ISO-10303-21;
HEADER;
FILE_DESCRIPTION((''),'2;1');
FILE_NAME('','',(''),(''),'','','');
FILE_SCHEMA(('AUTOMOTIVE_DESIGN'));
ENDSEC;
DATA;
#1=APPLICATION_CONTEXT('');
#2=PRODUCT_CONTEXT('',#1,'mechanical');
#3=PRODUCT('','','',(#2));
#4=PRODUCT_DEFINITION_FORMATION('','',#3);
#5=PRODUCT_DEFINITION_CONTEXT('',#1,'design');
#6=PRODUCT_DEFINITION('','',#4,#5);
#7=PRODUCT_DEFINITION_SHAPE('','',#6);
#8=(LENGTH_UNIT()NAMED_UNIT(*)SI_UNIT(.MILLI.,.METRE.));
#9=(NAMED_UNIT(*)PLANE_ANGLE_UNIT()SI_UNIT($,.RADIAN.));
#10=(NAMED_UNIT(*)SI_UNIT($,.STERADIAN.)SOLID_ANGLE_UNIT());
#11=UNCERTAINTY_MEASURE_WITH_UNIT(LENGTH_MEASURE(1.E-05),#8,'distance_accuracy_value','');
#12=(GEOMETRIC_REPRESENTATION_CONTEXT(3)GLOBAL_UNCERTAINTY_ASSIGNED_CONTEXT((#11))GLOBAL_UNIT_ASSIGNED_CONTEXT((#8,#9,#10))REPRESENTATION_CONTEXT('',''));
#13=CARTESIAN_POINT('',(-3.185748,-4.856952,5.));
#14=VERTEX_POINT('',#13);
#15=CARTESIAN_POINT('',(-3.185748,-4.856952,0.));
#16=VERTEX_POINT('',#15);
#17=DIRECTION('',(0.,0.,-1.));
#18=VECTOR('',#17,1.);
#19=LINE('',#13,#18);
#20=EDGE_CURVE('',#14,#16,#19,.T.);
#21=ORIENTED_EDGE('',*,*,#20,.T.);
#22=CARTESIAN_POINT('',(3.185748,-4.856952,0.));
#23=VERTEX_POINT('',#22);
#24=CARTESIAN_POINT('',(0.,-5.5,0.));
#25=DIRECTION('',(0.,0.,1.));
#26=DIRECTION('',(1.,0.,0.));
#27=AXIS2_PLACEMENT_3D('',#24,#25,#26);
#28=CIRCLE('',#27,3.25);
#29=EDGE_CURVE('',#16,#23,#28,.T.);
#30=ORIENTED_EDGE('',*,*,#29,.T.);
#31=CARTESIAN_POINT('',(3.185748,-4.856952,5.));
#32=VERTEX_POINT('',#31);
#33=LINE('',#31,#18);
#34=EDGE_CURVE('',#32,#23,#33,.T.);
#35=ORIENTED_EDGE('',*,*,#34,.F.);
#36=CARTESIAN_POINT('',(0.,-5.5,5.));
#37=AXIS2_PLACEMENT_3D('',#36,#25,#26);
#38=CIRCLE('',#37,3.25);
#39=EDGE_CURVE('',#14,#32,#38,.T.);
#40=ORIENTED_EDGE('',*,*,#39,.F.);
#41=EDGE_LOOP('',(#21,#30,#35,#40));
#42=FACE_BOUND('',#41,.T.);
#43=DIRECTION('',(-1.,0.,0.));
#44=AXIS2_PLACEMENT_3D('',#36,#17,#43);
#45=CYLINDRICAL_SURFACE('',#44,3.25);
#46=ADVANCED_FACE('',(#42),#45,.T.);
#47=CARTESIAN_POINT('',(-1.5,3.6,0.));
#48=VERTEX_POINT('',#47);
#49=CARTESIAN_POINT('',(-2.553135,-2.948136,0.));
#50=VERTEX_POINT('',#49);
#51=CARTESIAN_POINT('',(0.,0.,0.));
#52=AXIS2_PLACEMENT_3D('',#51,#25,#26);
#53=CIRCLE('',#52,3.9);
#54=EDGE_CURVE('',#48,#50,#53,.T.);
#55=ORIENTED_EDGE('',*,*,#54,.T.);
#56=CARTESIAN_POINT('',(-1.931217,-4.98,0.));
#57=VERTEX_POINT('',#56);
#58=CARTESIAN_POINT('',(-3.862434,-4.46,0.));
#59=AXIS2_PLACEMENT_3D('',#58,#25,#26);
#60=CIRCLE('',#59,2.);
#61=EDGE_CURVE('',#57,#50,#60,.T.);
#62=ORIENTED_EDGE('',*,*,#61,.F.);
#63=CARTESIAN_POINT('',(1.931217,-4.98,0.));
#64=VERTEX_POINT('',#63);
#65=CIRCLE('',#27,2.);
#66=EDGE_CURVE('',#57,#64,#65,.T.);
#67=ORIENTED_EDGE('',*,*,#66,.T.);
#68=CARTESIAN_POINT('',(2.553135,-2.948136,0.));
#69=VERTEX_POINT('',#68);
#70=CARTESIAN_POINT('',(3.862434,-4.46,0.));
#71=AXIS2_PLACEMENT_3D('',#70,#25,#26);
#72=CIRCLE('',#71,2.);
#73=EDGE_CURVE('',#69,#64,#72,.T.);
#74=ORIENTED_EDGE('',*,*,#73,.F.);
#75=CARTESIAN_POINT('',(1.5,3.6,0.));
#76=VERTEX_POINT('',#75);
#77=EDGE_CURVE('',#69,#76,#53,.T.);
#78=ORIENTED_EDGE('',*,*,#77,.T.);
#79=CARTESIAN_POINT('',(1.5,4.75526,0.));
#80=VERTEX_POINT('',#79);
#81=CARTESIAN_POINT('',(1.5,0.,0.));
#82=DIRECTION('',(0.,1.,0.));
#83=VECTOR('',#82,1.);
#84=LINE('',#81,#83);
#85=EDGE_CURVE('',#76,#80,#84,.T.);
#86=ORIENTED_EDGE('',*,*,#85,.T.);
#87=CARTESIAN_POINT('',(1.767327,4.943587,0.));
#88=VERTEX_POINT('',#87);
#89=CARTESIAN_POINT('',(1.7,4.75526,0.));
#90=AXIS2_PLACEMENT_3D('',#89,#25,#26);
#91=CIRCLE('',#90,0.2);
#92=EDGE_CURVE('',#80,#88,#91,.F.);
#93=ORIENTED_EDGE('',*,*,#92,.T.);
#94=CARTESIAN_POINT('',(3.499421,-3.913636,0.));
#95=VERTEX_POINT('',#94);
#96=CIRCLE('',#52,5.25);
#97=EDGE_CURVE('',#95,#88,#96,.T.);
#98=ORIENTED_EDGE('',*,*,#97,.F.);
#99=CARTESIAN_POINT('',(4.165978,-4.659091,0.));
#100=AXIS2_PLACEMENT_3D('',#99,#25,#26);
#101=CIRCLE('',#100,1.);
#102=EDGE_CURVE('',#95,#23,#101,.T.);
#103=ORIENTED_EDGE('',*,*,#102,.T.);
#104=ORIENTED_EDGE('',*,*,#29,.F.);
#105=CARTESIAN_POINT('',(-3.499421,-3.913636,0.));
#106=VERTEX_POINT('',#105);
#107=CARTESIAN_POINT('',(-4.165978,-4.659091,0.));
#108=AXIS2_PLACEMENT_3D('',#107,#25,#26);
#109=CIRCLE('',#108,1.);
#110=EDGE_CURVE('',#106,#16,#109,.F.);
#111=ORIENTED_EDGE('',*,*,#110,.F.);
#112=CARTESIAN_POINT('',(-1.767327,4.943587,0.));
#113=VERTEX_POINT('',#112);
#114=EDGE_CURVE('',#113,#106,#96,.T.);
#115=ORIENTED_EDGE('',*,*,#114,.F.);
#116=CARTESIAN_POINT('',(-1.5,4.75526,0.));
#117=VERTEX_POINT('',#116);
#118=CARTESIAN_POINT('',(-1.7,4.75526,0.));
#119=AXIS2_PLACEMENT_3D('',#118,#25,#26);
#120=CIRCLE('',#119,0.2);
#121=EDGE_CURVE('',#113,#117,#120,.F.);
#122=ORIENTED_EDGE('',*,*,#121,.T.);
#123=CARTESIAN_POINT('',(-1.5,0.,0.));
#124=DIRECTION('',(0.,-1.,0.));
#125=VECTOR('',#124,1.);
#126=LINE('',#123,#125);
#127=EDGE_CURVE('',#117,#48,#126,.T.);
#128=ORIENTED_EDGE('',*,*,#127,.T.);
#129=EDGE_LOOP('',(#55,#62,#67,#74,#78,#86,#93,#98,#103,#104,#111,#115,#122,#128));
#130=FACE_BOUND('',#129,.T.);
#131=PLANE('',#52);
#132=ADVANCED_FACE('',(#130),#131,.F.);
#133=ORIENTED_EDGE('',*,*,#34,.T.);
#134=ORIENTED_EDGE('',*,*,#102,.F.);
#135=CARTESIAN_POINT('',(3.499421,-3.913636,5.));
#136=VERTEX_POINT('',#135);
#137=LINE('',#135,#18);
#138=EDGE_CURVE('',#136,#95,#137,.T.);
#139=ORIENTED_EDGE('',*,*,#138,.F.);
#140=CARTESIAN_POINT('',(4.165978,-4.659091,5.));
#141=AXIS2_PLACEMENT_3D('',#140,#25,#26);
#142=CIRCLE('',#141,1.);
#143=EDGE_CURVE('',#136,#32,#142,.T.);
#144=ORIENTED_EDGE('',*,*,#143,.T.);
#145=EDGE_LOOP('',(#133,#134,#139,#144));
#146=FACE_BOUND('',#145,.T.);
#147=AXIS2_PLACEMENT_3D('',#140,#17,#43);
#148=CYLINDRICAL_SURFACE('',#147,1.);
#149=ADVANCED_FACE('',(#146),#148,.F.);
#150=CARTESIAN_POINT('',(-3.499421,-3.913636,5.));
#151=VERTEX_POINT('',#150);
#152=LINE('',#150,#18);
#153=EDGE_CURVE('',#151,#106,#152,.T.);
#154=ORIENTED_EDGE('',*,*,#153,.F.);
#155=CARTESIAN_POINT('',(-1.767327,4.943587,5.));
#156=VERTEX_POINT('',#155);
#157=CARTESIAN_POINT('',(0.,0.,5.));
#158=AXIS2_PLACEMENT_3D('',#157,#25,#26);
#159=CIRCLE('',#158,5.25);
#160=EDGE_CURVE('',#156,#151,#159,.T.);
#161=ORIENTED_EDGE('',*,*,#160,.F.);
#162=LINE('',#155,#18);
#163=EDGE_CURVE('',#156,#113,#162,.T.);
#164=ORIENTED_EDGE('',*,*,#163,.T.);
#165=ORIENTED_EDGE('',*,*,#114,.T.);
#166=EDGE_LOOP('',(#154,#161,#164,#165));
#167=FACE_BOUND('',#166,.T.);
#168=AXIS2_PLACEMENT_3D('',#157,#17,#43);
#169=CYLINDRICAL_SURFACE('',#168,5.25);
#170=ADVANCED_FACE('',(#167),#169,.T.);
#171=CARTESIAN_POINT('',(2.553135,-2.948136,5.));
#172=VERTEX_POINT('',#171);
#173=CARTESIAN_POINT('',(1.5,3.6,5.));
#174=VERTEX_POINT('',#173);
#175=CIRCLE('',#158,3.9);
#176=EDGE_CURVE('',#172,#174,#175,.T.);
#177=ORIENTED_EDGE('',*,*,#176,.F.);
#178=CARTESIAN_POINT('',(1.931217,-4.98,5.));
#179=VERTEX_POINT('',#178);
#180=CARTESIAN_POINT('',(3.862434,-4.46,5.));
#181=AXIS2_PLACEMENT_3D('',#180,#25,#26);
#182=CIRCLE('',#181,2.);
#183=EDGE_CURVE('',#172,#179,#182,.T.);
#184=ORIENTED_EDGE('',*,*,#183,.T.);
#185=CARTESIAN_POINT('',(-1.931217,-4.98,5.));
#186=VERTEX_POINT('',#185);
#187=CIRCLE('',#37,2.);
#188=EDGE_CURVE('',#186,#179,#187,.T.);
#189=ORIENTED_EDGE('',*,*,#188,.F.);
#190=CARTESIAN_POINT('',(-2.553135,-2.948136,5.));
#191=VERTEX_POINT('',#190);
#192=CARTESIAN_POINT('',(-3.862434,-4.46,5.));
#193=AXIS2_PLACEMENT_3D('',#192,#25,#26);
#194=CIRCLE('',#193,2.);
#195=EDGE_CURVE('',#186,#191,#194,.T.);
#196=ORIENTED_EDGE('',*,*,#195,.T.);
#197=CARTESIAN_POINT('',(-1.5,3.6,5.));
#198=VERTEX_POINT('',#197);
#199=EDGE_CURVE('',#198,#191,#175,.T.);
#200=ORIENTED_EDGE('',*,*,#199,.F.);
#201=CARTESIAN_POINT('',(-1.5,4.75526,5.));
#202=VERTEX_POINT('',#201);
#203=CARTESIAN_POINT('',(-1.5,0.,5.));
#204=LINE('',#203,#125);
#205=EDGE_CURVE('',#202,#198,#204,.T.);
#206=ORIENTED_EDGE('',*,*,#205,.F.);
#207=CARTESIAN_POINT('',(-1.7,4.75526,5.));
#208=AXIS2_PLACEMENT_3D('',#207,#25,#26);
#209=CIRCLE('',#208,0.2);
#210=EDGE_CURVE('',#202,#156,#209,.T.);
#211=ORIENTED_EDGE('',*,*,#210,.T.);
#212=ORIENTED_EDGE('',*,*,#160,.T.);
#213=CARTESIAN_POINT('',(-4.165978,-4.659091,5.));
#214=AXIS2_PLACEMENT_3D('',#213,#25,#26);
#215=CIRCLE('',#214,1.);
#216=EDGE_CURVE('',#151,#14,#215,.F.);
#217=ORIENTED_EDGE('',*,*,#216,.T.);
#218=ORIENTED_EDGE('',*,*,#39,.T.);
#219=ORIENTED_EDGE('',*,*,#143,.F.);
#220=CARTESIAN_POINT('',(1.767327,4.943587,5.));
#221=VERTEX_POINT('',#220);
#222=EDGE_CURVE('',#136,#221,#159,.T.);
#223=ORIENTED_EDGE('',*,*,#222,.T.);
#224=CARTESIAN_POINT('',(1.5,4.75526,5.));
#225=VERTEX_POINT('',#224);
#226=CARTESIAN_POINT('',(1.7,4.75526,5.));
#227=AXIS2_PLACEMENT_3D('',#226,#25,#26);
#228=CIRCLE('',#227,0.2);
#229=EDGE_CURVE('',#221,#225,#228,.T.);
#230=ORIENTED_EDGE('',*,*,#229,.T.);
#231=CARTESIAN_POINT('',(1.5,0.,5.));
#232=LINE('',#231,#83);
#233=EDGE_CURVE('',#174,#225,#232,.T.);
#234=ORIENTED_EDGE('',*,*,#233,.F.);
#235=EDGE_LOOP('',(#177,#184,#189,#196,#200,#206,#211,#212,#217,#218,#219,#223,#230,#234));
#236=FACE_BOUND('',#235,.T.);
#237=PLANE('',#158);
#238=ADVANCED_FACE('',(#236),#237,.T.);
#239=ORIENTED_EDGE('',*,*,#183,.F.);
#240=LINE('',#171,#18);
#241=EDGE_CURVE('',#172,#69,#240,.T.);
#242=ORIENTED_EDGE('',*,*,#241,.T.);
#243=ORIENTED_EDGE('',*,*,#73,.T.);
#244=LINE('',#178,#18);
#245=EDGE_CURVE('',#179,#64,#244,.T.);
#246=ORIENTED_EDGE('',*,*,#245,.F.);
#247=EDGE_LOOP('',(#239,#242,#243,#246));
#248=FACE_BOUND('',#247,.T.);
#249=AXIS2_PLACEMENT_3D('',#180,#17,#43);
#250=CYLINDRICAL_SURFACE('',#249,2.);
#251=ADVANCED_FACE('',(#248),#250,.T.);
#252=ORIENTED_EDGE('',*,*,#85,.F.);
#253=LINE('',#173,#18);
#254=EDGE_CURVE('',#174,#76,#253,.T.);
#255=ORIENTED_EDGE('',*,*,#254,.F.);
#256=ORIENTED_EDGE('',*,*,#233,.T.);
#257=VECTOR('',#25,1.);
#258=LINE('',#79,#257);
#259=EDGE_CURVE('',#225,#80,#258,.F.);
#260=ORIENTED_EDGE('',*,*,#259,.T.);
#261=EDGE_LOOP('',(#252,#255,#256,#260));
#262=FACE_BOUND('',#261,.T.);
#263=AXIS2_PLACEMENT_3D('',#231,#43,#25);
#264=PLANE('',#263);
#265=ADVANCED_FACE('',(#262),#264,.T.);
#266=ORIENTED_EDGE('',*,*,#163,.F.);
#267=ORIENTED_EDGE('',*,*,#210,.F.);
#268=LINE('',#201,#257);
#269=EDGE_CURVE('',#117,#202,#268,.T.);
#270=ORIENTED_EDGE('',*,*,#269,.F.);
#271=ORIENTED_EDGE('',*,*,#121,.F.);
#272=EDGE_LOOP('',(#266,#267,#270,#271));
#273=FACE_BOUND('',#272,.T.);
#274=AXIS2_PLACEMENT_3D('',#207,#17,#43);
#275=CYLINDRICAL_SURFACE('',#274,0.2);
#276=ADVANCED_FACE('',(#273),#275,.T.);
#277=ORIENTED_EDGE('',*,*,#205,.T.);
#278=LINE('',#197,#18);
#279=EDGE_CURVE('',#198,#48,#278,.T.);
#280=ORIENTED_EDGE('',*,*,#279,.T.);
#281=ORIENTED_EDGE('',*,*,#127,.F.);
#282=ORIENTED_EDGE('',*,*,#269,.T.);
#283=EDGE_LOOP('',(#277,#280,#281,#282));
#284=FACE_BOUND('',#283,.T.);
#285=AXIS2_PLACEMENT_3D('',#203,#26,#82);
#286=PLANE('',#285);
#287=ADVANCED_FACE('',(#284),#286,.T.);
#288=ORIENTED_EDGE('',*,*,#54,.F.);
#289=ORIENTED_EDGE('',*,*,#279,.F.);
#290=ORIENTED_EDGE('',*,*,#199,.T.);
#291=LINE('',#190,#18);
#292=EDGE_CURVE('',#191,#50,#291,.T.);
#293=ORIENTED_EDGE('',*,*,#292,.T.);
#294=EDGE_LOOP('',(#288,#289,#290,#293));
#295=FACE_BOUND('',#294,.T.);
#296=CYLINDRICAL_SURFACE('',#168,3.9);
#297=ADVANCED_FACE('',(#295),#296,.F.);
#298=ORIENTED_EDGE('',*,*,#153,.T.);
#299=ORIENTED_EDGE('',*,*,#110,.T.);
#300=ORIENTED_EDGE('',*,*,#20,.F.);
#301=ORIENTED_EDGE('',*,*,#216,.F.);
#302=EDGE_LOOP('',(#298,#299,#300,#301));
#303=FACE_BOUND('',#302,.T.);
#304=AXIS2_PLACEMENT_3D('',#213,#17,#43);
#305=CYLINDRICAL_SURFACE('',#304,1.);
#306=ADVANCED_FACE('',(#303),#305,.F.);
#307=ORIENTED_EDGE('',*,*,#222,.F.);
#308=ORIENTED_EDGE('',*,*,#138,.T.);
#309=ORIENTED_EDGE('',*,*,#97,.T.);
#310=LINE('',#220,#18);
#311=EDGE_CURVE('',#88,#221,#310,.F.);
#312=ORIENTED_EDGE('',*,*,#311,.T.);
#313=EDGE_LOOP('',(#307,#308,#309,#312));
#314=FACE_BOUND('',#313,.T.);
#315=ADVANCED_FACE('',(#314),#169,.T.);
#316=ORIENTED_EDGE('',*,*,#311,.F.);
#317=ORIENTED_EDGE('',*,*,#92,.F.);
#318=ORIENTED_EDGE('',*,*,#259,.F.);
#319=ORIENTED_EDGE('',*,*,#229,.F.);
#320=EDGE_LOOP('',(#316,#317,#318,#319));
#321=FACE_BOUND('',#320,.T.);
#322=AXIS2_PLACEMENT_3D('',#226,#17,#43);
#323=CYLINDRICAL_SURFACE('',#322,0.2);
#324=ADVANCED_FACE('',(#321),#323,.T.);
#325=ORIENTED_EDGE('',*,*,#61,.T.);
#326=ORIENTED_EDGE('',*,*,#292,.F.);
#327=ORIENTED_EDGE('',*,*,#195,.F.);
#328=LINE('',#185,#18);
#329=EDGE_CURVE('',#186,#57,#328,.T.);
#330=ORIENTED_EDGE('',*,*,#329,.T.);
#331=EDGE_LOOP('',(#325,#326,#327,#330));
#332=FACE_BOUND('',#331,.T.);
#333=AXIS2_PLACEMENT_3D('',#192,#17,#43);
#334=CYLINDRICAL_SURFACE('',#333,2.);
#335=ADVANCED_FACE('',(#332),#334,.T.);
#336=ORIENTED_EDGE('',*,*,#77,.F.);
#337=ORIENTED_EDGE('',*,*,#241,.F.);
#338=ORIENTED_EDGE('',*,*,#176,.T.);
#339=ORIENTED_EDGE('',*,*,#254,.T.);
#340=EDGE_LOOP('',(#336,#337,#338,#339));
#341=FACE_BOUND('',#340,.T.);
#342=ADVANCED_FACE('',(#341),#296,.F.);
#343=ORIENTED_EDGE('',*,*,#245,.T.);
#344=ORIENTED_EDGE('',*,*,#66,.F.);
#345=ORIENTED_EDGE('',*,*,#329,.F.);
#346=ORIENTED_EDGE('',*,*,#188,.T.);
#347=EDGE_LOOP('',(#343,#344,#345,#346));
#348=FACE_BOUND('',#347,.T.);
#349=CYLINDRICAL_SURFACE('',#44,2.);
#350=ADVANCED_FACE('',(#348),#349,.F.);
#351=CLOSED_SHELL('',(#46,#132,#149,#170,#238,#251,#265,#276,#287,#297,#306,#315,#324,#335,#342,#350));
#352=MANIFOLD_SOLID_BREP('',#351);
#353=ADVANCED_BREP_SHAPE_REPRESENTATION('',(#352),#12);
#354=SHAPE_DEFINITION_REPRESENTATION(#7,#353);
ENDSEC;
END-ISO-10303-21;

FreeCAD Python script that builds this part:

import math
import FreeCAD as App
import Part
import Sketcher
Q = App.Units.Quantity


def edges_at(feature, points):
    """Names of the edges that pass closest to the given points."""
    edges = feature.Shape.Edges
    near = lambda p: min(range(len(edges)), key=lambda i: edges[i].distToShape(Part.Vertex(*p))[0])
    return sorted({f"Edge{near(p) + 1}" for p in points})

doc = App.newDocument("Part")
body = doc.addObject("PartDesign::Body", "Body")

sketch1 = body.newObject("Sketcher::SketchObject", "Sketch")
sketch1.AttachmentSupport = (doc.getObject("XY_Plane"), [""])
sketch1.MapMode = "FlatFace"
sketch1.addGeometry(Part.ArcOfCircle(Part.Circle(App.Vector(0, -5.5, 0), App.Vector(0, 0, 1), 2), math.radians(165), math.radians(375)), False)
sketch1.addGeometry(Part.ArcOfCircle(Part.Circle(App.Vector(-3.9, -4.5, 0), App.Vector(0, 0, 1), 2), math.radians(-15), math.radians(49)), False)
sketch1.addGeometry(Part.ArcOfCircle(Part.Circle(App.Vector(0, 0, 0), App.Vector(0, 0, 1), 3.9), math.radians(113), math.radians(229)), False)
sketch1.addGeometry(Part.LineSegment(App.Vector(-1.5, 3.6, 0), App.Vector(-1.5, 5, 0)), False)
sketch1.addGeometry(Part.ArcOfCircle(Part.Circle(App.Vector(0, 0, 0), App.Vector(0, 0, 1), 5.2), math.radians(107), math.radians(228)), False)
sketch1.addGeometry(Part.ArcOfCircle(Part.Circle(App.Vector(-4.2, -4.7, 0), App.Vector(0, 0, 1), 1), math.radians(-11), math.radians(48)), False)
sketch1.addGeometry(Part.ArcOfCircle(Part.Circle(App.Vector(0, -5.5, 0), App.Vector(0, 0, 1), 3.2), math.radians(169), math.radians(371)), False)
sketch1.addGeometry(Part.ArcOfCircle(Part.Circle(App.Vector(4.2, -4.7, 0), App.Vector(0, 0, 1), 1), math.radians(132), math.radians(191)), False)
sketch1.addGeometry(Part.ArcOfCircle(Part.Circle(App.Vector(0, 0, 0), App.Vector(0, 0, 1), 5.2), math.radians(-48), math.radians(73)), False)
sketch1.addGeometry(Part.LineSegment(App.Vector(1.5, 5, 0), App.Vector(1.5, 3.6, 0)), False)
sketch1.addGeometry(Part.ArcOfCircle(Part.Circle(App.Vector(0, 0, 0), App.Vector(0, 0, 1), 3.9), math.radians(-49), math.radians(67)), False)
sketch1.addGeometry(Part.ArcOfCircle(Part.Circle(App.Vector(3.9, -4.5, 0), App.Vector(0, 0, 1), 2), math.radians(131), math.radians(195)), False)
sketch1.addConstraint(Sketcher.Constraint("Tangent", 0, 1, 1, 1))
sketch1.addConstraint(Sketcher.Constraint("Tangent", 1, 2, 2, 2))
sketch1.addConstraint(Sketcher.Constraint("Coincident", 2, 1, 3, 1))
sketch1.addConstraint(Sketcher.Constraint("Coincident", 3, 2, 4, 1))
sketch1.addConstraint(Sketcher.Constraint("Tangent", 4, 2, 5, 2))
sketch1.addConstraint(Sketcher.Constraint("Tangent", 5, 1, 6, 1))
sketch1.addConstraint(Sketcher.Constraint("Tangent", 6, 2, 7, 2))
sketch1.addConstraint(Sketcher.Constraint("Tangent", 7, 1, 8, 1))
sketch1.addConstraint(Sketcher.Constraint("Coincident", 8, 2, 9, 1))
sketch1.addConstraint(Sketcher.Constraint("Coincident", 9, 2, 10, 2))
sketch1.addConstraint(Sketcher.Constraint("Tangent", 10, 1, 11, 1))
sketch1.addConstraint(Sketcher.Constraint("Tangent", 11, 2, 0, 2))
sketch1.addConstraint(Sketcher.Constraint("Vertical", 3))
sketch1.addConstraint(Sketcher.Constraint("Vertical", 9))
sketch1.addConstraint(Sketcher.Constraint("Coincident", 2, 3, -1, 1))
sketch1.addConstraint(Sketcher.Constraint("Coincident", 4, 3, -1, 1))
sketch1.addConstraint(Sketcher.Constraint("Coincident", 8, 3, -1, 1))
sketch1.addConstraint(Sketcher.Constraint("Coincident", 10, 3, -1, 1))
sketch1.addConstraint(Sketcher.Constraint("Coincident", 6, 3, 0, 3))
sketch1.addConstraint(Sketcher.Constraint("Equal", 0, 1))
sketch1.addConstraint(Sketcher.Constraint("Equal", 5, 7))
sketch1.addConstraint(Sketcher.Constraint("Equal", 4, 8))
sketch1.addConstraint(Sketcher.Constraint("Equal", 2, 10))
sketch1.addConstraint(Sketcher.Constraint("Equal", 1, 11))
sketch1.addConstraint(Sketcher.Constraint("PointOnObject", 0, 3, -2))
sketch1.addConstraint(Sketcher.Constraint("Horizontal", 3, 2, 8, 2))
sketch1.addConstraint(Sketcher.Constraint("Radius", 0, Q("2 mm")))
sketch1.addConstraint(Sketcher.Constraint("Radius", 5, Q("1 mm")))
sketch1.addConstraint(Sketcher.Constraint("Radius", 2, Q("3.9 mm")))
sketch1.addConstraint(Sketcher.Constraint("Radius", 4, Q("5.25 mm")))
sketch1.addConstraint(Sketcher.Constraint("Radius", 6, Q("3.25 mm")))
sketch1.addConstraint(Sketcher.Constraint("DistanceX", 3, 2, 8, 2, Q("3 mm")))
sketch1.addConstraint(Sketcher.Constraint("DistanceY", 0, 3, -1, 1, Q("5.5 mm")))
pad1 = body.newObject("PartDesign::Pad", "Pad")
pad1.Profile = sketch1
pad1.Length = 5
doc.recompute()

fillet = body.newObject("PartDesign::Fillet", "Fillet")
fillet.Base = (pad1, edges_at(pad1, [(1.5, 5.031, 2.5), (-1.5, 5.031, 2.5)]))
fillet.Radius = 0.2

doc.recompute()
